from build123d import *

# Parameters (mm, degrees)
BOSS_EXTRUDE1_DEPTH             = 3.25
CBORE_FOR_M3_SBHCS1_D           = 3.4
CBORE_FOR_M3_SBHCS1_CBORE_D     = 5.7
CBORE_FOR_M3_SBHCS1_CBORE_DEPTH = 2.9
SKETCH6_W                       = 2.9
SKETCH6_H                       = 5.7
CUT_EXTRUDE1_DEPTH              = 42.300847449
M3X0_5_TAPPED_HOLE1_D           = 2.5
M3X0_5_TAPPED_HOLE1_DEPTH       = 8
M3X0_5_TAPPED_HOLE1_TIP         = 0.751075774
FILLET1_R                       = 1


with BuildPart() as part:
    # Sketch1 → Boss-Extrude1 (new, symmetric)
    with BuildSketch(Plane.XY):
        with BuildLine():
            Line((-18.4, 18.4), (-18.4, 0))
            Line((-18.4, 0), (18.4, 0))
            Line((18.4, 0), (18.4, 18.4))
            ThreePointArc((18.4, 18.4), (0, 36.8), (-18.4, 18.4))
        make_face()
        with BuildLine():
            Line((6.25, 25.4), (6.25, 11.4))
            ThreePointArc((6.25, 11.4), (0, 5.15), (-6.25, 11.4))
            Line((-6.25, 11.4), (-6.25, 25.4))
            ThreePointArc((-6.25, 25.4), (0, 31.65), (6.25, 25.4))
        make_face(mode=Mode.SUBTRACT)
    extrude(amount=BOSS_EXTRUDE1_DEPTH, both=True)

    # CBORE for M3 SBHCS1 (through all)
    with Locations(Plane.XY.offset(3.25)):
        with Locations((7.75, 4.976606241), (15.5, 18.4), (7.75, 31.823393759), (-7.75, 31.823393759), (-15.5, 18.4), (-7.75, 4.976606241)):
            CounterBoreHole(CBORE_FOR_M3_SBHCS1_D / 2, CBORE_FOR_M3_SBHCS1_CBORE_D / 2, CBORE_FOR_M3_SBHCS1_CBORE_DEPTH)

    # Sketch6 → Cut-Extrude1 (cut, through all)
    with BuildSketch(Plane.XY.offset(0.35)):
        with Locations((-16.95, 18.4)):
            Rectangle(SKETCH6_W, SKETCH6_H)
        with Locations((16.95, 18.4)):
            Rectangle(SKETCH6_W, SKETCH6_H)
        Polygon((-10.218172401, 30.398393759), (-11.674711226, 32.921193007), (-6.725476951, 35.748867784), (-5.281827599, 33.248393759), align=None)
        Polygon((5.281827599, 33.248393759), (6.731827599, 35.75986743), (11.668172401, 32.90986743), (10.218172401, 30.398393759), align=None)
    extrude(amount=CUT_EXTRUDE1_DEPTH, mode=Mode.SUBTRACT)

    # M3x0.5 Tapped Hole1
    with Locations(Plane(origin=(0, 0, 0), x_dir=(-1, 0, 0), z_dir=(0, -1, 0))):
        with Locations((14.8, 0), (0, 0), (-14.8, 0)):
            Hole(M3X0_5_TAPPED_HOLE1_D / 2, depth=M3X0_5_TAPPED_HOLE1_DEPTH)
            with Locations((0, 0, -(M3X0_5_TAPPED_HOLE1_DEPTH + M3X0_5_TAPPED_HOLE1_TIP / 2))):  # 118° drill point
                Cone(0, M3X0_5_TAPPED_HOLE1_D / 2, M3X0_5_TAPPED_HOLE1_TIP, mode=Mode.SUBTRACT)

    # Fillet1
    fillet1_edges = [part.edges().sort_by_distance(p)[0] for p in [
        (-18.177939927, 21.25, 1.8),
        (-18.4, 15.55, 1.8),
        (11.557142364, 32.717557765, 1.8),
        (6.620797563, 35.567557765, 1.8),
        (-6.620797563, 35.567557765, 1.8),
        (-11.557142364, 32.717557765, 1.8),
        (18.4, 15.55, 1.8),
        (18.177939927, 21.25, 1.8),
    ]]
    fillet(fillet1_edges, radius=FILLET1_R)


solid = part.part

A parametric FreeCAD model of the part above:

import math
import FreeCAD as App
import Part
import Sketcher

V = App.Vector
Q = App.Units.Quantity


def edges_at(feature, points):
    """Names of the edges that pass closest to the given points."""
    edges = feature.Shape.Edges
    near = lambda p: min(range(len(edges)), key=lambda i: edges[i].distToShape(Part.Vertex(*p))[0])
    return sorted({f"Edge{near(p) + 1}" for p in points})

doc = App.newDocument("Part")
params = doc.addObject("Spreadsheet::Sheet", "Params")
for row, (alias, value) in enumerate([
    ("sketch1_radius", "18.4 mm"),
    ("sketch1_height", "14 mm"),
    ("sketch1_radius2", "6.25 mm"),
    ("sketch1_height2", "18.4 mm"),
    ("pad1_length", "6.5 mm"),
    ("sketch2_diameter", "3.4 mm"),
    ("hole_diameter", "3.4 mm"),
    ("hole_cbore_diameter", "5.7 mm"),
    ("hole_cbore_depth", "2.9 mm"),
    ("sketch3_width", "2.9 mm"),
    ("sketch3_height", "5.7 mm"),
    ("sketch3_length", "5.7 mm"),
    ("sketch3_length2", "2.9 mm"),
    ("sketch4_diameter", "2.5 mm"),
    ("hole2_diameter", "2.5 mm"),
    ("hole2_depth", "8 mm"),
    ("fillet_radius", "1 mm"),
], start=1):
    params.set(f"A{row}", alias)
    params.set(f"B{row}", "=" + value)
    params.setAlias(f"B{row}", alias)

body = doc.addObject("PartDesign::Body", "Body")

# Sketch on XY plane
sketch1 = doc.addObject("Sketcher::SketchObject", "Sketch")
body.addObject(sketch1)
sketch1.AttachmentSupport = (doc.XY_Plane, [""])
sketch1.MapMode = "FlatFace"
sketch1.addGeometry(Part.LineSegment(V(-18, 18, 0), V(-18, 0, 0)), False)
sketch1.addGeometry(Part.LineSegment(V(-18, 0, 0), V(18, 0, 0)), False)
sketch1.addGeometry(Part.LineSegment(V(18, 0, 0), V(18, 18, 0)), False)
sketch1.addGeometry(Part.ArcOfCircle(Part.Circle(V(0, 18, 0), V(0, 0, 1), 18), math.radians(0), math.radians(180)), False)
sketch1.addGeometry(Part.ArcOfCircle(Part.Circle(V(0, 25, 0), V(0, 0, 1), 6), math.radians(0), math.radians(180)), False)
sketch1.addGeometry(Part.LineSegment(V(6, 25, 0), V(6, 11, 0)), False)
sketch1.addGeometry(Part.ArcOfCircle(Part.Circle(V(0, 11, 0), V(0, 0, 1), 6), math.radians(180), math.radians(360)), False)
sketch1.addGeometry(Part.LineSegment(V(-6, 11, 0), V(-6, 25, 0)), False)
sketch1.addConstraint(Sketcher.Constraint("Coincident", 0, 2, 1, 1))
sketch1.addConstraint(Sketcher.Constraint("Coincident", 1, 2, 2, 1))
sketch1.addConstraint(Sketcher.Constraint("Tangent", 2, 2, 3, 1))
sketch1.addConstraint(Sketcher.Constraint("Tangent", 3, 2, 0, 1))
sketch1.addConstraint(Sketcher.Constraint("Tangent", 4, 1, 5, 1))
sketch1.addConstraint(Sketcher.Constraint("Tangent", 5, 2, 6, 2))
sketch1.addConstraint(Sketcher.Constraint("Tangent", 6, 1, 7, 1))
sketch1.addConstraint(Sketcher.Constraint("Tangent", 7, 2, 4, 2))
sketch1.addConstraint(Sketcher.Constraint("Vertical", 0))
sketch1.addConstraint(Sketcher.Constraint("Horizontal", 1))
sketch1.addConstraint(Sketcher.Constraint("Vertical", 2))
sketch1.addConstraint(Sketcher.Constraint("Vertical", 5))
sketch1.addConstraint(Sketcher.Constraint("Vertical", 7))
sketch1.addConstraint(Sketcher.Constraint("Symmetric", 0, 2, 1, 2, -1, 1))
sketch1.addConstraint(Sketcher.Constraint("PointOnObject", 4, 3, -2))
sketch1.addConstraint(Sketcher.Constraint("Radius", 3, Q("18.4 mm")))
sketch1.addConstraint(Sketcher.Constraint("DistanceY", 5, 2, 5, 1, Q("14 mm")))
sketch1.addConstraint(Sketcher.Constraint("Radius", 4, Q("6.25 mm")))
sketch1.addConstraint(Sketcher.Constraint("DistanceY", 0, 2, 0, 1, Q("18.4 mm")))
sketch1.addConstraint(Sketcher.Constraint("DistanceY", 3, 3, 4, 3, Q("7 mm")))
sketch1.setExpression("Constraints[15]", "Params.sketch1_radius")
sketch1.setExpression("Constraints[16]", "Params.sketch1_height")
sketch1.setExpression("Constraints[17]", "Params.sketch1_radius2")
sketch1.setExpression("Constraints[18]", "Params.sketch1_height2")
pad1 = doc.addObject("PartDesign::Pad", "Pad")
body.addObject(pad1)
pad1.Profile = sketch1
pad1.setExpression("Length", "Params.pad1_length")
pad1.Midplane = True

# Sketch on XY plane
sketch2 = doc.addObject("Sketcher::SketchObject", "Sketch001")
body.addObject(sketch2)
sketch2.AttachmentSupport = (doc.XY_Plane, [""])
sketch2.MapMode = "FlatFace"
sketch2.AttachmentOffset = App.Placement(V(0, 0, 3.25), App.Rotation())
sketch2.addGeometry(Part.Circle(V(7.8, 5, 0), V(0, 0, 1), 1.7), False)
sketch2.addGeometry(Part.Circle(V(15.5, 18.4, 0), V(0, 0, 1), 1.7), False)
sketch2.addGeometry(Part.Circle(V(7.8, 31.8, 0), V(0, 0, 1), 1.7), False)
sketch2.addGeometry(Part.Circle(V(-7.8, 31.8, 0), V(0, 0, 1), 1.7), False)
sketch2.addGeometry(Part.Circle(V(-15.5, 18.4, 0), V(0, 0, 1), 1.7), False)
sketch2.addGeometry(Part.Circle(V(-7.8, 5, 0), V(0, 0, 1), 1.7), False)
sketch2.addConstraint(Sketcher.Constraint("Equal", 0, 1))
sketch2.addConstraint(Sketcher.Constraint("Equal", 1, 2))
sketch2.addConstraint(Sketcher.Constraint("Equal", 2, 3))
sketch2.addConstraint(Sketcher.Constraint("Equal", 3, 4))
sketch2.addConstraint(Sketcher.Constraint("Equal", 4, 5))
sketch2.addConstraint(Sketcher.Constraint("Symmetric", 2, 3, 3, 3, -2))
sketch2.addConstraint(Sketcher.Constraint("Symmetric", 1, 3, 4, 3, -2))
sketch2.addConstraint(Sketcher.Constraint("Symmetric", 0, 3, 5, 3, -2))
sketch2.addConstraint(Sketcher.Constraint("Vertical", 0, 3, 2, 3))
sketch2.addConstraint(Sketcher.Constraint("Diameter", 0, Q("3.4 mm")))
sketch2.addConstraint(Sketcher.Constraint("DistanceX", 4, 3, 1, 3, Q("31 mm")))
sketch2.addConstraint(Sketcher.Constraint("DistanceY", -1, 1, 1, 3, Q("18.4 mm")))
sketch2.addConstraint(Sketcher.Constraint("DistanceX", 3, 3, 2, 3, Q("15.5 mm")))
sketch2.addConstraint(Sketcher.Constraint("DistanceY", -1, 1, 0, 3, Q("4.976606 mm")))
sketch2.addConstraint(Sketcher.Constraint("DistanceY", -1, 1, 2, 3, Q("31.823394 mm")))
sketch2.setExpression("Constraints[9]", "Params.sketch2_diameter")
doc.recompute()
hole = doc.addObject("PartDesign::Hole", "Hole")
body.addObject(hole)
hole.Profile = sketch2
hole.ThreadType = "None"
hole.setExpression("Diameter", "Params.hole_diameter")
hole.DepthType = "ThroughAll"
hole.HoleCutType = "Counterbore"
hole.setExpression("HoleCutDiameter", "Params.hole_cbore_diameter")
hole.setExpression("HoleCutDepth", "Params.hole_cbore_depth")

# Sketch on XY plane
sketch3 = doc.addObject("Sketcher::SketchObject", "Sketch002")
body.addObject(sketch3)
sketch3.AttachmentSupport = (doc.XY_Plane, [""])
sketch3.MapMode = "FlatFace"
sketch3.AttachmentOffset = App.Placement(V(0, 0, 0.35), App.Rotation())
sketch3.addGeometry(Part.LineSegment(V(-18.4, 21.2, 0), V(-18.4, 15.6, 0)), False)
sketch3.addGeometry(Part.LineSegment(V(-18.4, 15.6, 0), V(-15.5, 15.6, 0)), False)
sketch3.addGeometry(Part.LineSegment(V(-15.5, 15.6, 0), V(-15.5, 21.2, 0)), False)
sketch3.addGeometry(Part.LineSegment(V(-15.5, 21.2, 0), V(-18.4, 21.2, 0)), False)
sketch3.addGeometry(Part.LineSegment(V(15.5, 21.2, 0), V(15.5, 15.6, 0)), False)
sketch3.addGeometry(Part.LineSegment(V(15.5, 15.6, 0), V(18.4, 15.6, 0)), False)
sketch3.addGeometry(Part.LineSegment(V(18.4, 15.6, 0), V(18.4, 21.2, 0)), False)
sketch3.addGeometry(Part.LineSegment(V(18.4, 21.2, 0), V(15.5, 21.2, 0)), False)
sketch3.addGeometry(Part.LineSegment(V(-11.7, 32.9, 0), V(-10.2, 30.4, 0)), False)
sketch3.addGeometry(Part.LineSegment(V(-10.2, 30.4, 0), V(-5.3, 33.2, 0)), False)
sketch3.addGeometry(Part.LineSegment(V(-5.3, 33.2, 0), V(-6.7, 35.7, 0)), False)
sketch3.addGeometry(Part.LineSegment(V(-6.7, 35.7, 0), V(-11.7, 32.9, 0)), False)
sketch3.addGeometry(Part.LineSegment(V(6.7, 35.8, 0), V(5.3, 33.2, 0)), False)
sketch3.addGeometry(Part.LineSegment(V(5.3, 33.2, 0), V(10.2, 30.4, 0)), False)
sketch3.addGeometry(Part.LineSegment(V(10.2, 30.4, 0), V(11.7, 32.9, 0)), False)
sketch3.addGeometry(Part.LineSegment(V(11.7, 32.9, 0), V(6.7, 35.8, 0)), False)
sketch3.addConstraint(Sketcher.Constraint("Coincident", 0, 2, 1, 1))
sketch3.addConstraint(Sketcher.Constraint("Coincident", 1, 2, 2, 1))
sketch3.addConstraint(Sketcher.Constraint("Coincident", 2, 2, 3, 1))
sketch3.addConstraint(Sketcher.Constraint("Coincident", 3, 2, 0, 1))
sketch3.addConstraint(Sketcher.Constraint("Coincident", 4, 2, 5, 1))
sketch3.addConstraint(Sketcher.Constraint("Coincident", 5, 2, 6, 1))
sketch3.addConstraint(Sketcher.Constraint("Coincident", 6, 2, 7, 1))
sketch3.addConstraint(Sketcher.Constraint("Coincident", 7, 2, 4, 1))
sketch3.addConstraint(Sketcher.Constraint("Coincident", 8, 2, 9, 1))
sketch3.addConstraint(Sketcher.Constraint("Coincident", 9, 2, 10, 1))
sketch3.addConstraint(Sketcher.Constraint("Coincident", 10, 2, 11, 1))
sketch3.addConstraint(Sketcher.Constraint("Coincident", 11, 2, 8, 1))
sketch3.addConstraint(Sketcher.Constraint("Coincident", 12, 2, 13, 1))
sketch3.addConstraint(Sketcher.Constraint("Coincident", 13, 2, 14, 1))
sketch3.addConstraint(Sketcher.Constraint("Coincident", 14, 2, 15, 1))
sketch3.addConstraint(Sketcher.Constraint("Coincident", 15, 2, 12, 1))
sketch3.addConstraint(Sketcher.Constraint("Vertical", 0))
sketch3.addConstraint(Sketcher.Constraint("Horizontal", 1))
sketch3.addConstraint(Sketcher.Constraint("Vertical", 2))
sketch3.addConstraint(Sketcher.Constraint("Horizontal", 3))
sketch3.addConstraint(Sketcher.Constraint("Vertical", 4))
sketch3.addConstraint(Sketcher.Constraint("Horizontal", 5))
sketch3.addConstraint(Sketcher.Constraint("Vertical", 6))
sketch3.addConstraint(Sketcher.Constraint("Horizontal", 7))
sketch3.addConstraint(Sketcher.Constraint("Symmetric", 1, 2, 4, 2, -2))
sketch3.addConstraint(Sketcher.Constraint("Symmetric", 3, 2, 6, 2, -2))
sketch3.addConstraint(Sketcher.Constraint("Symmetric", 9, 2, 12, 2, -2))
sketch3.addConstraint(Sketcher.Constraint("Symmetric", 8, 2, 13, 2, -2))
sketch3.addConstraint(Sketcher.Constraint("Perpendicular", 8, 9))
sketch3.addConstraint(Sketcher.Constraint("Perpendicular", 9, 10))
sketch3.addConstraint(Sketcher.Constraint("Perpendicular", 12, 13))
sketch3.addConstraint(Sketcher.Constraint("Perpendicular", 13, 14))
sketch3.addConstraint(Sketcher.Constraint("Perpendicular", 14, 15))
sketch3.addConstraint(Sketcher.Constraint("Angle", 8, Q("-60 deg")))
sketch3.addConstraint(Sketcher.Constraint("DistanceX", 1, 1, 1, 2, Q("2.9 mm")))
sketch3.addConstraint(Sketcher.Constraint("DistanceY", 0, 2, 0, 1, Q("5.7 mm")))
sketch3.addConstraint(Sketcher.Constraint("DistanceX", 1, 2, 4, 2, Q("31 mm")))
sketch3.addConstraint(Sketcher.Constraint("Distance", 9, Q("5.7 mm")))
sketch3.addConstraint(Sketcher.Constraint("Distance", 12, Q("2.9 mm")))
sketch3.addConstraint(Sketcher.Constraint("DistanceX", 8, 2, 12, 2, Q("15.5 mm")))
sketch3.addConstraint(Sketcher.Constraint("DistanceY", -1, 1, 0, 2, Q("15.55 mm")))
sketch3.addConstraint(Sketcher.Constraint("DistanceY", 10, 2, 15, 2, Q("0.011 mm")))
sketch3.addConstraint(Sketcher.Constraint("DistanceY", 8, 2, 11, 2, Q("2.522799 mm")))
sketch3.addConstraint(Sketcher.Constraint("DistanceY", -1, 1, 8, 2, Q("30.398394 mm")))
sketch3.setExpression("Constraints[34]", "Params.sketch3_width")
sketch3.setExpression("Constraints[35]", "Params.sketch3_height")
sketch3.setExpression("Constraints[37]", "Params.sketch3_length")
sketch3.setExpression("Constraints[38]", "Params.sketch3_length2")
pocket1 = doc.addObject("PartDesign::Pocket", "Pocket")
body.addObject(pocket1)
pocket1.Profile = sketch3
pocket1.Type = "ThroughAll"
pocket1.Reversed = True

# Sketch on XZ plane
sketch4 = doc.addObject("Sketcher::SketchObject", "Sketch003")
body.addObject(sketch4)
sketch4.AttachmentSupport = (doc.XZ_Plane, [""])
sketch4.MapMode = "FlatFace"
sketch4.addGeometry(Part.Circle(V(-14.8, 0, 0), V(0, 0, 1), 1.2), False)
sketch4.addGeometry(Part.Circle(V(0, 0, 0), V(0, 0, 1), 1.2), False)
sketch4.addGeometry(Part.Circle(V(14.8, 0, 0), V(0, 0, 1), 1.2), False)
sketch4.addConstraint(Sketcher.Constraint("Coincident", 1, 3, -1, 1))
sketch4.addConstraint(Sketcher.Constraint("Equal", 0, 1))
sketch4.addConstraint(Sketcher.Constraint("Equal", 1, 2))
sketch4.addConstraint(Sketcher.Constraint("Symmetric", 0, 3, 2, 3, -1, 1))
sketch4.addConstraint(Sketcher.Constraint("PointOnObject", 0, 3, -1))
sketch4.addConstraint(Sketcher.Constraint("Diameter", 0, Q("2.5 mm")))
sketch4.addConstraint(Sketcher.Constraint("DistanceX", 0, 3, -1, 1, Q("14.8 mm")))
sketch4.setExpression("Constraints[5]", "Params.sketch4_diameter")
doc.recompute()
hole2 = doc.addObject("PartDesign::Hole", "Hole001")
body.addObject(hole2)
hole2.Profile = sketch4
hole2.ThreadType = "None"
hole2.setExpression("Diameter", "Params.hole2_diameter")
hole2.DepthType = "Dimension"
hole2.setExpression("Depth", "Params.hole2_depth")
hole2.DrillPoint = "Angled"
hole2.DrillPointAngle = 118
doc.recompute()

fillet = doc.addObject("PartDesign::Fillet", "Fillet")
body.addObject(fillet)
fillet.Base = (hole2, edges_at(hole2, [
    (-18.178, 21.25, 1.8),
    (-18.4, 15.55, 1.8),
    (11.557, 32.718, 1.8),
    (6.621, 35.568, 1.8),
    (-6.621, 35.568, 1.8),
    (-11.557, 32.718, 1.8),
    (18.4, 15.55, 1.8),
    (18.178, 21.25, 1.8),
]))
fillet.setExpression("Radius", "Params.fillet_radius")

doc.recompute()
